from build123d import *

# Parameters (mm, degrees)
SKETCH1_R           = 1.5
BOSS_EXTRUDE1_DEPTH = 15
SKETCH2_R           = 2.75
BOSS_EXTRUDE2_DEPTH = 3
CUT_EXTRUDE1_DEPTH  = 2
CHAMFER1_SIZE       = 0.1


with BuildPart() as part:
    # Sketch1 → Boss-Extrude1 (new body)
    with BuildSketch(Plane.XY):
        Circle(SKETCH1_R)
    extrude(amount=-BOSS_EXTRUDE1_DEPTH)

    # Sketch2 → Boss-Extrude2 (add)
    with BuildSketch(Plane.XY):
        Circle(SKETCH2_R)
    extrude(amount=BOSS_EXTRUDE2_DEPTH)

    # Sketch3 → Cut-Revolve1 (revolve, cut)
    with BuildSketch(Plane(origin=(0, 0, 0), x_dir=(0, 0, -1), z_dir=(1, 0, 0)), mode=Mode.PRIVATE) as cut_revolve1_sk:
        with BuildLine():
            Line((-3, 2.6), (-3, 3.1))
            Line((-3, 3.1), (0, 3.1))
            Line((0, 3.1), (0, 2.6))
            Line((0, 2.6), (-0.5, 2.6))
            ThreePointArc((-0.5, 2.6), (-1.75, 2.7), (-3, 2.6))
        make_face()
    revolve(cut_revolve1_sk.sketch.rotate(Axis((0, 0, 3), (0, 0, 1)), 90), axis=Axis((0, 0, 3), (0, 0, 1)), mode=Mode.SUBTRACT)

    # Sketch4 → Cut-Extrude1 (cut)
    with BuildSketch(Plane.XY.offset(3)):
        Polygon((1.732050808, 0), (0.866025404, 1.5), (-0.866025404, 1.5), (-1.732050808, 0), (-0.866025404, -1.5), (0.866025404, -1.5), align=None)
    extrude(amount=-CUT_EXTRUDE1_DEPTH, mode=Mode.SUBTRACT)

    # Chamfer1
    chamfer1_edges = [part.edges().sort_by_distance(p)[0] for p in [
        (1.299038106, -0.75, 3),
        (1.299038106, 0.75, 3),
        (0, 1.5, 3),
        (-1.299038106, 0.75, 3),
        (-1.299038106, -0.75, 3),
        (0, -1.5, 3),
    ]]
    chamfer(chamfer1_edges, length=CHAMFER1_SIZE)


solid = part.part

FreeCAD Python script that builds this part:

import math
import FreeCAD as App
import Part
import Sketcher

V = App.Vector
Q = App.Units.Quantity


def edges_at(feature, points):
    """Names of the edges that pass closest to the given points."""
    edges = feature.Shape.Edges
    near = lambda p: min(range(len(edges)), key=lambda i: edges[i].distToShape(Part.Vertex(*p))[0])
    return sorted({f"Edge{near(p) + 1}" for p in points})


def add_polygon(sketch, points):
    """Adds a closed chain of lines whose ends are joined by coincident constraints."""
    first, n = sketch.GeometryCount, len(points)
    for a, b in zip(points, points[1:] + points[:1]):
        sketch.addGeometry(Part.LineSegment(App.Vector(*a, 0), App.Vector(*b, 0)), False)
    for i in range(n):
        sketch.addConstraint(Sketcher.Constraint("Coincident", first + i, 2, first + (i + 1) % n, 1))

doc = App.newDocument("Part")
body = doc.addObject("PartDesign::Body", "Body")

sketch1 = body.newObject("Sketcher::SketchObject", "Sketch")
sketch1.AttachmentSupport = (doc.getObject("XY_Plane"), [""])
sketch1.MapMode = "FlatFace"
sketch1.addGeometry(Part.Circle(V(0, 0, 0), V(0, 0, 1), 1.5), False)
sketch1.addConstraint(Sketcher.Constraint("Coincident", 0, 3, -1, 1))
sketch1.addConstraint(Sketcher.Constraint("Diameter", 0, 3.0))
pad1 = body.newObject("PartDesign::Pad", "Pad")
pad1.Profile = sketch1
pad1.Length = 15
pad1.Reversed = True

sketch2 = body.newObject("Sketcher::SketchObject", "Sketch001")
sketch2.AttachmentSupport = (doc.getObject("XY_Plane"), [""])
sketch2.MapMode = "FlatFace"
sketch2.addGeometry(Part.Circle(V(0, 0, 0), V(0, 0, 1), 2.8), False)
sketch2.addConstraint(Sketcher.Constraint("Coincident", 0, 3, -1, 1))
sketch2.addConstraint(Sketcher.Constraint("Diameter", 0, 5.5))
pad2 = body.newObject("PartDesign::Pad", "Pad001")
pad2.Profile = sketch2
pad2.Length = 3

sketch3 = body.newObject("Sketcher::SketchObject", "Sketch002")
sketch3.AttachmentSupport = (doc.getObject("YZ_Plane"), [""])
sketch3.MapMode = "FlatFace"
sketch3.addGeometry(Part.LineSegment(V(3.1, 3, 0), V(2.6, 3, 0)), False)
sketch3.addGeometry(Part.ArcOfCircle(Part.Circle(V(-5.2, 1.8, 0), V(0, 0, 1), 7.9), math.radians(-9.15), math.radians(9.15)), False)
sketch3.addGeometry(Part.LineSegment(V(2.6, 0.5, 0), V(2.6, 0, 0)), False)
sketch3.addGeometry(Part.LineSegment(V(2.6, 0, 0), V(3.1, 0, 0)), False)
sketch3.addGeometry(Part.LineSegment(V(3.1, 0, 0), V(3.1, 3, 0)), False)
sketch3.addConstraint(Sketcher.Constraint("Coincident", 0, 2, 1, 2))
sketch3.addConstraint(Sketcher.Constraint("Coincident", 1, 1, 2, 1))
sketch3.addConstraint(Sketcher.Constraint("Coincident", 2, 2, 3, 1))
sketch3.addConstraint(Sketcher.Constraint("Coincident", 3, 2, 4, 1))
sketch3.addConstraint(Sketcher.Constraint("Coincident", 4, 2, 0, 1))
sketch3.addConstraint(Sketcher.Constraint("Horizontal", 0))
sketch3.addConstraint(Sketcher.Constraint("Vertical", 2))
sketch3.addConstraint(Sketcher.Constraint("Horizontal", 3))
sketch3.addConstraint(Sketcher.Constraint("Vertical", 4))
sketch3.addConstraint(Sketcher.Constraint("PointOnObject", 2, 2, -1))
sketch3.addConstraint(Sketcher.Constraint("Vertical", 0, 2, 1, 1))
sketch3.addConstraint(Sketcher.Constraint("Equal", 3, 2))
sketch3.addConstraint(Sketcher.Constraint("DistanceY", 4, 1, 4, 2, 3.0))
sketch3.addConstraint(Sketcher.Constraint("DistanceX", 0, 2, 0, 1, 0.5))
sketch3.addConstraint(Sketcher.Constraint("DistanceX", -1, 1, 0, 2, 2.6))
sketch3.addConstraint(Sketcher.Constraint("Radius", 1, 7.8625))
groove = body.newObject("PartDesign::Groove", "Groove")
groove.Profile = sketch3
groove.ReferenceAxis = (sketch3, ["V_Axis"])
groove.Angle = 360

sketch4 = body.newObject("Sketcher::SketchObject", "Sketch003")
sketch4.AttachmentSupport = (doc.getObject("XY_Plane"), [""])
sketch4.MapMode = "FlatFace"
sketch4.AttachmentOffset = App.Placement(V(0, 0, 3), App.Rotation())
add_polygon(sketch4, [(1.7, 0), (0.9, 1.5), (-0.9, 1.5), (-1.7, 0), (-0.9, -1.5), (0.9, -1.5)])
sketch4.addConstraint(Sketcher.Constraint("Horizontal", 1))
sketch4.addConstraint(Sketcher.Constraint("Horizontal", 4))
sketch4.addConstraint(Sketcher.Constraint("Symmetric", 0, 2, 3, 2, -1, 1))
sketch4.addConstraint(Sketcher.Constraint("Symmetric", 2, 2, 5, 2, -1, 1))
sketch4.addConstraint(Sketcher.Constraint("PointOnObject", 2, 2, -1))
sketch4.addConstraint(Sketcher.Constraint("Parallel", 2, 5))
sketch4.addConstraint(Sketcher.Constraint("Vertical", 1, 2, 3, 2))
sketch4.addConstraint(Sketcher.Constraint("Angle", 0, Q("120 deg")))
sketch4.addConstraint(Sketcher.Constraint("DistanceY", 3, 2, 1, 2, 3.0))
sketch4.addConstraint(Sketcher.Constraint("DistanceX", 1, 2, 1, 1, 1.732051))
pocket1 = body.newObject("PartDesign::Pocket", "Pocket")
pocket1.Profile = sketch4
pocket1.Length = 2
doc.recompute()

chamfer = body.newObject("PartDesign::Chamfer", "Chamfer")
chamfer.Base = (pocket1, edges_at(pocket1, [
    (1.299, -0.75, 3),
    (1.299, 0.75, 3),
    (0, 1.5, 3),
    (-1.299, 0.75, 3),
    (-1.299, -0.75, 3),
    (0, -1.5, 3),
]))
chamfer.Size = 0.1

doc.recompute()
